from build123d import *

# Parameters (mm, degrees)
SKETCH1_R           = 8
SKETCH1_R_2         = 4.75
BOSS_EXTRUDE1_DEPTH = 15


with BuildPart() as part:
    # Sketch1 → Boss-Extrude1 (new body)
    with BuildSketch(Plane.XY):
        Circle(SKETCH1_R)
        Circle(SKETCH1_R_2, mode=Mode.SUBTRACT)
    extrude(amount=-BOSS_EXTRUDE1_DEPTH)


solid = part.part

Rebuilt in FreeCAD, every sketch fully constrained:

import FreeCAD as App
import Part
import Sketcher

V = App.Vector

doc = App.newDocument("Part")
body = doc.addObject("PartDesign::Body", "Body")

# Sketch on XY plane
sketch1 = body.newObject("Sketcher::SketchObject", "Sketch")
sketch1.AttachmentSupport = (doc.getObject("XY_Plane"), [""])
sketch1.MapMode = "FlatFace"
sketch1.addGeometry([
    Part.Circle(V(0, 0, 0), V(0, 0, 1), 8),
    Part.Circle(V(0, 0, 0), V(0, 0, 1), 4.8),
], False)
sketch1.addConstraint([
    Sketcher.Constraint("Coincident", 0, 3, -1, 1),
    Sketcher.Constraint("Coincident", 1, 3, -1, 1),
    Sketcher.Constraint("Diameter", 0, 16.0),
    Sketcher.Constraint("Diameter", 1, 9.5),
])
pad1 = body.newObject("PartDesign::Pad", "Pad")
pad1.Profile = sketch1
pad1.Length = 15
pad1.Reversed = True

doc.recompute()
